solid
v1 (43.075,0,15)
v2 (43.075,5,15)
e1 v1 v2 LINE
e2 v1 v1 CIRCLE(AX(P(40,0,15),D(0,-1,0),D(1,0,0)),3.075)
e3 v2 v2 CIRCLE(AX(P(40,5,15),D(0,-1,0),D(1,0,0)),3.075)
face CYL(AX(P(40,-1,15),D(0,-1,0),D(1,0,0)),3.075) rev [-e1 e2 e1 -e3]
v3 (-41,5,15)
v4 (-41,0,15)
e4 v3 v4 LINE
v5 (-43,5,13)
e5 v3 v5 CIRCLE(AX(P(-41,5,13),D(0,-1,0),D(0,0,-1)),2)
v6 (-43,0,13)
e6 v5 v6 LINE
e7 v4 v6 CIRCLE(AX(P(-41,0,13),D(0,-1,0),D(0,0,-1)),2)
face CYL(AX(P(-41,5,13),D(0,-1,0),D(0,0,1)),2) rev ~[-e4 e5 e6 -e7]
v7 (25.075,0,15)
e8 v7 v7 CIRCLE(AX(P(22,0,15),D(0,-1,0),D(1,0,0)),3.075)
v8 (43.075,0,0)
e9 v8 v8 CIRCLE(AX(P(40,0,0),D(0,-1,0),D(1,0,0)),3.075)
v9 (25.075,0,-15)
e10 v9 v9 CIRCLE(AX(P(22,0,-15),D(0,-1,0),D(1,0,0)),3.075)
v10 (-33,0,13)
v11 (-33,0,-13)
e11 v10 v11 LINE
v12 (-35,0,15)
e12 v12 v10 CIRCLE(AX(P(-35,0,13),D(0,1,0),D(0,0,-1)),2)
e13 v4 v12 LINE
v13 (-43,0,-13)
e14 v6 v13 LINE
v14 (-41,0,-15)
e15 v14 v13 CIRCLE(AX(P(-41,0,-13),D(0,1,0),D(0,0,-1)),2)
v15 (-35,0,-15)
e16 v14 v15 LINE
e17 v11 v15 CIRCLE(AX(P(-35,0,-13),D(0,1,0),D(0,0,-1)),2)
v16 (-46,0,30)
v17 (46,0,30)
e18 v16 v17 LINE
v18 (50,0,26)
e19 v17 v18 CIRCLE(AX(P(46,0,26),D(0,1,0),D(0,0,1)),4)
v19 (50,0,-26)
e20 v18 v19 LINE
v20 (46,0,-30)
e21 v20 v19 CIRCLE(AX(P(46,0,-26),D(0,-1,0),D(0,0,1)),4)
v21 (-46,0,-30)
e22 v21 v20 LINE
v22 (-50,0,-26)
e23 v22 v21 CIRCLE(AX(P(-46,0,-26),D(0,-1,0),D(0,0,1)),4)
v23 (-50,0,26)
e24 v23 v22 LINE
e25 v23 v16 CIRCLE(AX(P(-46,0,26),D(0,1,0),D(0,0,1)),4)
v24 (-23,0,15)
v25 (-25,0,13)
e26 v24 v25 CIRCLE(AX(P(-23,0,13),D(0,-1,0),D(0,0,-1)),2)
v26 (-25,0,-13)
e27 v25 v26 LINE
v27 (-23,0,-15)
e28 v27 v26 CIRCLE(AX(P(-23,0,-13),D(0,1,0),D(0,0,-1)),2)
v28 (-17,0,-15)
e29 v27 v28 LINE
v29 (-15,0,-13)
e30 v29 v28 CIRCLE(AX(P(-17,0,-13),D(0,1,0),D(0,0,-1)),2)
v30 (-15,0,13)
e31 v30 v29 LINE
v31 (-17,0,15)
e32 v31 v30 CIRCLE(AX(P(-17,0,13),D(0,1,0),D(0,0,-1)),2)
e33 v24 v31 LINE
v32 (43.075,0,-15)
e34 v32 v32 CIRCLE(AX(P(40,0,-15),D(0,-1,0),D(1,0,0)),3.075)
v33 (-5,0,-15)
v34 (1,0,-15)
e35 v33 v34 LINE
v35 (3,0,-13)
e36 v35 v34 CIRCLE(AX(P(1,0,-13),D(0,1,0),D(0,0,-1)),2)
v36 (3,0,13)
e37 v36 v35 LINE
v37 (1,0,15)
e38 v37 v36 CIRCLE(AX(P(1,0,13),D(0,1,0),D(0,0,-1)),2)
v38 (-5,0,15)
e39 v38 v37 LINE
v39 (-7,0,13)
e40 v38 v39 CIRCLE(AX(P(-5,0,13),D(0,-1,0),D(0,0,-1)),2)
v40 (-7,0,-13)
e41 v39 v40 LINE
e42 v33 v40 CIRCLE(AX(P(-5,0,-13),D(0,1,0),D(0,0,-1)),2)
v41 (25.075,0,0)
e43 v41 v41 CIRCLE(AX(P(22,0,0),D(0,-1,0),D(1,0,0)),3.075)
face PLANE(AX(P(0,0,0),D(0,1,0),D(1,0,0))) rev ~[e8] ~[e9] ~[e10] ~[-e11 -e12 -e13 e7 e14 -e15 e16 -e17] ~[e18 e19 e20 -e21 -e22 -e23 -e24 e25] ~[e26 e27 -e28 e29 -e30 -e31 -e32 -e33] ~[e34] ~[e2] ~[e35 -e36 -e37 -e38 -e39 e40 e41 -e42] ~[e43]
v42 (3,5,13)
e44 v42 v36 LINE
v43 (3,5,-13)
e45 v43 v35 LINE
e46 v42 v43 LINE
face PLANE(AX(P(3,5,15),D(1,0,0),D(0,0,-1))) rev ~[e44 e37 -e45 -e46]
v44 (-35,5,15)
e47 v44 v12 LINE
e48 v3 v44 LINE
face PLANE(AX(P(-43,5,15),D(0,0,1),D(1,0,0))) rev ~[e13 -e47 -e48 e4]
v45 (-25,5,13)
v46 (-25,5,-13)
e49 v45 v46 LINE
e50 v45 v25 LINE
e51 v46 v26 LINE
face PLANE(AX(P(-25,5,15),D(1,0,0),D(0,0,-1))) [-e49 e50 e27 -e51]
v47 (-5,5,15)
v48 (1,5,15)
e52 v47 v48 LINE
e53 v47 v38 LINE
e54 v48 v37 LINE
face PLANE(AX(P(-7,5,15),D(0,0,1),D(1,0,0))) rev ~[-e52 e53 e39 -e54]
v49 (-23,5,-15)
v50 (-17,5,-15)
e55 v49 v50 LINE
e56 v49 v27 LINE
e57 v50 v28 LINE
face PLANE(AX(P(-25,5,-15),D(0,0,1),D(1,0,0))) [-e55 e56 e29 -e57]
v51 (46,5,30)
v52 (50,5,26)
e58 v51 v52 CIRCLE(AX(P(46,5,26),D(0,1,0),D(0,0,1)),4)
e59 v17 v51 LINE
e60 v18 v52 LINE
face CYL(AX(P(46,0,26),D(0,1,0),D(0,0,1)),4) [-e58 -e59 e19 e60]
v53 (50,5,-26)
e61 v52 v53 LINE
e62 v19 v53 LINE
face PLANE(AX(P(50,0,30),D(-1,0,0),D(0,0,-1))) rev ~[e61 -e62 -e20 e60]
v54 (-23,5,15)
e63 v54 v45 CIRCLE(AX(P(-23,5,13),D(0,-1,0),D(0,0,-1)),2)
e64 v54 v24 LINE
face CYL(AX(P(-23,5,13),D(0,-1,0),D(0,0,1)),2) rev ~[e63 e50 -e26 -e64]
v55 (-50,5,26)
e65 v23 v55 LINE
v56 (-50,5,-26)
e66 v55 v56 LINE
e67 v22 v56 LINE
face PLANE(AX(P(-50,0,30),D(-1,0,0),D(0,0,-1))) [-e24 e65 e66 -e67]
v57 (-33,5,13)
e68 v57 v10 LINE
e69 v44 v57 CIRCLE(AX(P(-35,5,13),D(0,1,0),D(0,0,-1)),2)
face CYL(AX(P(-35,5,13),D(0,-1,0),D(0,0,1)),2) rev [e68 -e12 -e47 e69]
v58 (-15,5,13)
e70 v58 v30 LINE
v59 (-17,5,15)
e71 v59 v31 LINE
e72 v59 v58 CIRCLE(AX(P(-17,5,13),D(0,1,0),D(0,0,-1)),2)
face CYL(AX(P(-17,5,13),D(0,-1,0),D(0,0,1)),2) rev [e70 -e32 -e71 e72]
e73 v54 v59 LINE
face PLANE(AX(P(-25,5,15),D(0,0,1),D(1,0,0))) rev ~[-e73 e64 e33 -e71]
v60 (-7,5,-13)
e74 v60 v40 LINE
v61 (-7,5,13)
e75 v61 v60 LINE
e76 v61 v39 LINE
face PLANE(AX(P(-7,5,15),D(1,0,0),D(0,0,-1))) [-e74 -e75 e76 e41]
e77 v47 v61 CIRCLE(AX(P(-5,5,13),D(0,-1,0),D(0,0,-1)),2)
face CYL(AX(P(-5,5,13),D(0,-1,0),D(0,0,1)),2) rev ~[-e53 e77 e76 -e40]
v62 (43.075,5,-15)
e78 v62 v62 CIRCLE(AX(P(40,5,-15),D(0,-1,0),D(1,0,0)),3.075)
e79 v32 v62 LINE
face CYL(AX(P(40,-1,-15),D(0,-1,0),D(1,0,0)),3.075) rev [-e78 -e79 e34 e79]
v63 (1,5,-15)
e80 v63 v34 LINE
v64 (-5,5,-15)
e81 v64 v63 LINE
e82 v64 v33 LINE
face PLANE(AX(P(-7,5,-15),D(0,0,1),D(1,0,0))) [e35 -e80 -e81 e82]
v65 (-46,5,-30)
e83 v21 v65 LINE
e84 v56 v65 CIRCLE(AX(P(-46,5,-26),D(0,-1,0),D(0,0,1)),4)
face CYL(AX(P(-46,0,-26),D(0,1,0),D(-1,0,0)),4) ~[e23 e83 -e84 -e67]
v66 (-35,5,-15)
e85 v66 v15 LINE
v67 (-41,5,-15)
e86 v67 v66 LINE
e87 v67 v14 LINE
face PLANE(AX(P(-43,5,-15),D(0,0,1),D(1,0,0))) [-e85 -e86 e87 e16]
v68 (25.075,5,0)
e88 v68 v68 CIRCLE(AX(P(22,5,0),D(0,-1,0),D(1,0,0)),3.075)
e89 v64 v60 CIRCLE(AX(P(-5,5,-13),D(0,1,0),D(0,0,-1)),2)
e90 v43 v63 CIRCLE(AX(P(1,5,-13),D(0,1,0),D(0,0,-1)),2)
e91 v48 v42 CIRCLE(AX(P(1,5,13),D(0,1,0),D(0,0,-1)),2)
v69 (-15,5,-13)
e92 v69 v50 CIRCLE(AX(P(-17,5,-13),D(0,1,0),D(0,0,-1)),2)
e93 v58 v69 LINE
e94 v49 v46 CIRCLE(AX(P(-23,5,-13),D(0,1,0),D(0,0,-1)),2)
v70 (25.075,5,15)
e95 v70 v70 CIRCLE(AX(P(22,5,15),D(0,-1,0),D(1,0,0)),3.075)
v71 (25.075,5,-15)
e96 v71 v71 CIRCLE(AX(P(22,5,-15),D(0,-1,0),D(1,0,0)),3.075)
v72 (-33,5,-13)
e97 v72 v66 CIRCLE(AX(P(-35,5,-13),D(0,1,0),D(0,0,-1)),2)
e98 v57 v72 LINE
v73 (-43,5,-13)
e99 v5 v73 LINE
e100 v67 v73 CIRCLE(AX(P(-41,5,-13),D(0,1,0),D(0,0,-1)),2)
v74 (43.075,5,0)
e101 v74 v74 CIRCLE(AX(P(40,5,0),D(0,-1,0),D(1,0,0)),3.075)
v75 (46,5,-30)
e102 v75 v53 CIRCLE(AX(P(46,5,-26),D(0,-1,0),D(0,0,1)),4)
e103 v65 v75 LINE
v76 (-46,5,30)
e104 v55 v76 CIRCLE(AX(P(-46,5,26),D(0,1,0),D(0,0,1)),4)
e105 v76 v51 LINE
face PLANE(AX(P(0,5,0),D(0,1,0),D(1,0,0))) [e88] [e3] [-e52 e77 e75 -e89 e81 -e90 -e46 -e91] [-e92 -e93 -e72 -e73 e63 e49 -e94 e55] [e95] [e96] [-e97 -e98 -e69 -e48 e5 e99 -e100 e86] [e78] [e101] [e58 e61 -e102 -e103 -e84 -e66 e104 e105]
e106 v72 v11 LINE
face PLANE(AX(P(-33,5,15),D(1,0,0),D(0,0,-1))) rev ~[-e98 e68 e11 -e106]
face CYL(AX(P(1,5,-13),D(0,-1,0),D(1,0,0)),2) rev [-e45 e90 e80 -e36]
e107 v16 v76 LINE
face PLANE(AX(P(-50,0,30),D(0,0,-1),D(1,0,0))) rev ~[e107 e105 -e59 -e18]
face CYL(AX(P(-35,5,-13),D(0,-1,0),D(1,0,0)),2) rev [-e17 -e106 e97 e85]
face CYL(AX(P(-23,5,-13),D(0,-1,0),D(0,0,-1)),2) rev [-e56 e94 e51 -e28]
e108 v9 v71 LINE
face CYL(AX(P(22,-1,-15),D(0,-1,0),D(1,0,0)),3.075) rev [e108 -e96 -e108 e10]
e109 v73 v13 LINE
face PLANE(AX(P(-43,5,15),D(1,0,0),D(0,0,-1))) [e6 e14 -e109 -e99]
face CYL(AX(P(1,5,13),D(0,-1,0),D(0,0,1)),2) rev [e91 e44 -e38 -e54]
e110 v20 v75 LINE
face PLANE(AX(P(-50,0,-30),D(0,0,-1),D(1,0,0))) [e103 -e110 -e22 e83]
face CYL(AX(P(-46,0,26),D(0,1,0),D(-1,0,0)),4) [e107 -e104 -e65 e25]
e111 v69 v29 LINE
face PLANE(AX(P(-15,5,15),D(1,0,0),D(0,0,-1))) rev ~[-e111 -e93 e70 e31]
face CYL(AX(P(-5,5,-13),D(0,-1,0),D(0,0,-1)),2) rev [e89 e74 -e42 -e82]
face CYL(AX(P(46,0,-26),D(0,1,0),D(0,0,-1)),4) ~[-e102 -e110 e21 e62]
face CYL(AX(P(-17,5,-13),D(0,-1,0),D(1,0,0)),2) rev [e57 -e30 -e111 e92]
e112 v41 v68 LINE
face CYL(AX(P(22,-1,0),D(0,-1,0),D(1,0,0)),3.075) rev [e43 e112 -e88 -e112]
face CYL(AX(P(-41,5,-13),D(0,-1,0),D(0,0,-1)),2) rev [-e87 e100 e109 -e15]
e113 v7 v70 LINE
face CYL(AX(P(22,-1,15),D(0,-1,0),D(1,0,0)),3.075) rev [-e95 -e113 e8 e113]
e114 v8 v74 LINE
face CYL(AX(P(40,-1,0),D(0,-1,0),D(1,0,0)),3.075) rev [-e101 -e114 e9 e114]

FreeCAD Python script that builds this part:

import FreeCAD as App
import Part
import Sketcher

V = App.Vector
Q = App.Units.Quantity


def edges_at(feature, points):
    """Names of the edges that pass closest to the given points."""
    edges = feature.Shape.Edges
    near = lambda p: min(range(len(edges)), key=lambda i: edges[i].distToShape(Part.Vertex(*p))[0])
    return sorted({f"Edge{near(p) + 1}" for p in points})

doc = App.newDocument("Part")
body = doc.addObject("PartDesign::Body", "Body")

# Sketch on XZ plane
sketch1 = body.newObject("Sketcher::SketchObject", "Sketch")
sketch1.AttachmentSupport = (doc.getObject("XZ_Plane"), [""])
sketch1.MapMode = "FlatFace"
sketch1.addGeometry([
    Part.LineSegment(V(-50, -30, 0), V(-50, 30, 0)),
    Part.LineSegment(V(-50, 30, 0), V(50, 30, 0)),
    Part.LineSegment(V(50, 30, 0), V(50, -30, 0)),
    Part.LineSegment(V(50, -30, 0), V(-50, -30, 0)),
], False)
sketch1.addConstraint([
    Sketcher.Constraint("Coincident", 0, 2, 1, 1),
    Sketcher.Constraint("Coincident", 1, 2, 2, 1),
    Sketcher.Constraint("Coincident", 2, 2, 3, 1),
    Sketcher.Constraint("Coincident", 3, 2, 0, 1),
    Sketcher.Constraint("Vertical", 0),
    Sketcher.Constraint("Horizontal", 1),
    Sketcher.Constraint("Vertical", 2),
    Sketcher.Constraint("Horizontal", 3),
    Sketcher.Constraint("Symmetric", 0, 2, 2, 2, -1, 1),
    Sketcher.Constraint("DistanceX", 1, 1, 1, 2, Q("100 mm")),
    Sketcher.Constraint("DistanceY", 0, 1, 0, 2, Q("60 mm")),
])
pad1 = body.newObject("PartDesign::Pad", "Pad")
pad1.Profile = sketch1
pad1.Length = 5
pad1.Reversed = True

# Sketch on XZ plane
sketch2 = body.newObject("Sketcher::SketchObject", "Sketch001")
sketch2.AttachmentSupport = (doc.getObject("XZ_Plane"), [""])
sketch2.MapMode = "FlatFace"
sketch2.AttachmentOffset = App.Placement(V(0, 0, 1), App.Rotation())
sketch2.addGeometry([
    Part.Circle(V(40, -15, 0), V(0, 0, 1), 3.1),
    Part.Circle(V(40, 15, 0), V(0, 0, 1), 3.1),
    Part.Circle(V(40, 0, 0), V(0, 0, 1), 3.1),
], False)
sketch2.addConstraint([
    Sketcher.Constraint("Equal", 0, 1),
    Sketcher.Constraint("Equal", 1, 2),
    Sketcher.Constraint("Symmetric", 0, 3, 1, 3, -1),
    Sketcher.Constraint("PointOnObject", 2, 3, -1),
    Sketcher.Constraint("Vertical", 1, 3, 2, 3),
    Sketcher.Constraint("Diameter", 0, Q("6.15 mm")),
    Sketcher.Constraint("DistanceX", -1, 1, 0, 3, Q("40 mm")),
    Sketcher.Constraint("DistanceY", 0, 3, -1, 1, Q("15 mm")),
])
pocket1 = body.newObject("PartDesign::Pocket", "Pocket")
pocket1.Profile = sketch2
pocket1.Length = 7

# Sketch on XZ plane
sketch3 = body.newObject("Sketcher::SketchObject", "Sketch002")
sketch3.AttachmentSupport = (doc.getObject("XZ_Plane"), [""])
sketch3.MapMode = "FlatFace"
sketch3.AttachmentOffset = App.Placement(V(0, 0, -5), App.Rotation())
sketch3.addGeometry([
    Part.LineSegment(V(-43, -15, 0), V(-43, 15, 0)),
    Part.LineSegment(V(-43, 15, 0), V(-33, 15, 0)),
    Part.LineSegment(V(-33, 15, 0), V(-33, -15, 0)),
    Part.LineSegment(V(-33, -15, 0), V(-43, -15, 0)),
], False)
sketch3.addConstraint([
    Sketcher.Constraint("Coincident", 0, 2, 1, 1),
    Sketcher.Constraint("Coincident", 1, 2, 2, 1),
    Sketcher.Constraint("Coincident", 2, 2, 3, 1),
    Sketcher.Constraint("Coincident", 3, 2, 0, 1),
    Sketcher.Constraint("Vertical", 0),
    Sketcher.Constraint("Horizontal", 1),
    Sketcher.Constraint("Vertical", 2),
    Sketcher.Constraint("Horizontal", 3),
    Sketcher.Constraint("DistanceX", 1, 1, 1, 2, Q("10 mm")),
    Sketcher.Constraint("DistanceY", 0, 1, 0, 2, Q("30 mm")),
    Sketcher.Constraint("DistanceX", 0, 2, -1, 1, Q("43 mm")),
    Sketcher.Constraint("DistanceY", -1, 1, 0, 2, Q("15 mm")),
])
pocket2 = body.newObject("PartDesign::Pocket", "Pocket001")
pocket2.Profile = sketch3
pocket2.Type = "ThroughAll"
pocket2.Reversed = True
doc.recompute()

fillet = body.newObject("PartDesign::Fillet", "Fillet")
fillet.Base = (pocket2, edges_at(pocket2, [
    (-33, 2.5, -15),
    (-33, 2.5, 15),
    (-43, 2.5, 15),
    (-43, 2.5, -15),
]))
fillet.Radius = 2
doc.recompute()

linearpattern = body.newObject("PartDesign::LinearPattern", "LinearPattern")
linearpattern.Originals = [pocket2]
linearpattern.Direction = (doc.getObject("X_Axis"), [""])
linearpattern.Mode = "offset"
linearpattern.Offset = 18
linearpattern.Occurrences = 3
body.Tip = linearpattern
doc.recompute()

fillet2 = body.newObject("PartDesign::Fillet", "Fillet001")
fillet2.Base = (linearpattern, edges_at(linearpattern, [
    (-15, 2.5, -15),
    (-15, 2.5, 15),
    (-25, 2.5, 15),
    (-25, 2.5, -15),
    (3, 2.5, -15),
    (3, 2.5, 15),
    (-7, 2.5, 15),
    (-7, 2.5, -15),
]))
fillet2.Radius = 2
doc.recompute()

linearpattern2 = body.newObject("PartDesign::LinearPattern", "LinearPattern001")
linearpattern2.Originals = [pocket1]
linearpattern2.Direction = (doc.getObject("X_Axis"), [""])
linearpattern2.Mode = "offset"
linearpattern2.Offset = 18
linearpattern2.Occurrences = 2
linearpattern2.Reversed = True
body.Tip = linearpattern2
doc.recompute()

fillet3 = body.newObject("PartDesign::Fillet", "Fillet002")
fillet3.Base = (linearpattern2, edges_at(linearpattern2, [
    (50, 2.5, 30),
    (-50, 2.5, 30),
    (-50, 2.5, -30),
    (50, 2.5, -30),
]))
fillet3.Radius = 4

doc.recompute()
